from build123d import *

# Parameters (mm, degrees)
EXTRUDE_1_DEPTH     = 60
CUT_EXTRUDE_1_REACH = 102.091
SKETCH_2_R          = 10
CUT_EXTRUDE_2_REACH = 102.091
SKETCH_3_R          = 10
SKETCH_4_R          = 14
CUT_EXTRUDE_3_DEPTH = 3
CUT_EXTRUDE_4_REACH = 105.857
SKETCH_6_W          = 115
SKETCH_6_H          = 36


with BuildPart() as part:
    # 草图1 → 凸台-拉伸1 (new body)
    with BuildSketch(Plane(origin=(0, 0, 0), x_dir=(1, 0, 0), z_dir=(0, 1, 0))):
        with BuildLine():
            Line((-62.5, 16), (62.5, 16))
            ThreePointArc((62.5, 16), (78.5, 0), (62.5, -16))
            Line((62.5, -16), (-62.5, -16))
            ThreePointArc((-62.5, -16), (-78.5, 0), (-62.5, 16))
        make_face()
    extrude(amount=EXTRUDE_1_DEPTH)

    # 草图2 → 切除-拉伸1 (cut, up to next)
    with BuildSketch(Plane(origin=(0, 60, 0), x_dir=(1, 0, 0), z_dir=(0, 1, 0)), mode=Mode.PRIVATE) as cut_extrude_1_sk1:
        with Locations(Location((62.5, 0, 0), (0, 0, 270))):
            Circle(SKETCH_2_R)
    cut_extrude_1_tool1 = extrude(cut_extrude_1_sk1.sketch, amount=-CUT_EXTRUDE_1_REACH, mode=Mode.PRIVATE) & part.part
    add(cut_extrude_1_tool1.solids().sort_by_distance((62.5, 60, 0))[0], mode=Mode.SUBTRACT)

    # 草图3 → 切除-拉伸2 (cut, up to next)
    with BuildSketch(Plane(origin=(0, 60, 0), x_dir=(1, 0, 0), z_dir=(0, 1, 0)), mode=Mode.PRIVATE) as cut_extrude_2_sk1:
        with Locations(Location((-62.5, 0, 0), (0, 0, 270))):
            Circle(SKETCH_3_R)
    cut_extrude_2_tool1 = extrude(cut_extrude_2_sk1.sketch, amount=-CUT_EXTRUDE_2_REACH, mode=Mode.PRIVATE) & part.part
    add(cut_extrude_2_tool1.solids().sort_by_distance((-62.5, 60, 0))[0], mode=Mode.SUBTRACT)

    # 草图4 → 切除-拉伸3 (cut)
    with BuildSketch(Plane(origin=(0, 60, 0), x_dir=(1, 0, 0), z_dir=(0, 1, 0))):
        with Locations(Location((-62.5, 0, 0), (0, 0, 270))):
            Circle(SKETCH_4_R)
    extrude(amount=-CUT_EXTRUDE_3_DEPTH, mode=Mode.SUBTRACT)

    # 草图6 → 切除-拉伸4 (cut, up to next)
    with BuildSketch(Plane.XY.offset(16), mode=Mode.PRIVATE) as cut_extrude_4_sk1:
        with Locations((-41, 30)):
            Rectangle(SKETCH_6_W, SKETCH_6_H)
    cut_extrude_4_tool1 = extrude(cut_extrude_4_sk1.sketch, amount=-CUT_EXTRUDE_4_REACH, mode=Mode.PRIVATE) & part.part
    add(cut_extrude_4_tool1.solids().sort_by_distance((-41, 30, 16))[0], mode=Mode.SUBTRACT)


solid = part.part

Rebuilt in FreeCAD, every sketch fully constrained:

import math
import FreeCAD as App
import Part
import Sketcher
Q = App.Units.Quantity


def add_polygon(sketch, points):
    """Adds a closed chain of lines whose ends are joined by coincident constraints."""
    first, n = sketch.GeometryCount, len(points)
    for a, b in zip(points, points[1:] + points[:1]):
        sketch.addGeometry(Part.LineSegment(App.Vector(*a, 0), App.Vector(*b, 0)), False)
    for i in range(n):
        sketch.addConstraint(Sketcher.Constraint("Coincident", first + i, 2, first + (i + 1) % n, 1))

doc = App.newDocument("Part")
body = doc.addObject("PartDesign::Body", "Body")

sketch1 = body.newObject("Sketcher::SketchObject", "Sketch")
sketch1.AttachmentSupport = (doc.getObject("XZ_Plane"), [""])
sketch1.MapMode = "FlatFace"
sketch1.addGeometry([
    Part.LineSegment(App.Vector(62, -16, 0), App.Vector(-62, -16, 0)),
    Part.ArcOfCircle(Part.Circle(App.Vector(-62, 0, 0), App.Vector(0, 0, 1), 16), math.radians(90), math.radians(270)),
    Part.LineSegment(App.Vector(-62, 16, 0), App.Vector(62, 16, 0)),
    Part.ArcOfCircle(Part.Circle(App.Vector(62, 0, 0), App.Vector(0, 0, 1), 16), math.radians(-90), math.radians(90)),
], False)
sketch1.addConstraint([
    Sketcher.Constraint("Tangent", 0, 2, 1, 2),
    Sketcher.Constraint("Tangent", 1, 1, 2, 1),
    Sketcher.Constraint("Tangent", 2, 2, 3, 2),
    Sketcher.Constraint("Tangent", 3, 1, 0, 1),
    Sketcher.Constraint("Horizontal", 0),
    Sketcher.Constraint("Horizontal", 2),
    Sketcher.Constraint("Symmetric", 1, 3, 3, 3, -1, 1),
    Sketcher.Constraint("Radius", 1, Q("16 mm")),
    Sketcher.Constraint("DistanceX", 0, 2, 0, 1, Q("125 mm")),
])
pad1 = body.newObject("PartDesign::Pad", "Pad")
pad1.Profile = sketch1
pad1.Length = 60
pad1.Reversed = True

sketch2 = body.newObject("Sketcher::SketchObject", "Sketch001")
sketch2.AttachmentSupport = (doc.getObject("XZ_Plane"), [""])
sketch2.MapMode = "FlatFace"
sketch2.AttachmentOffset = App.Placement(App.Vector(0, 0, -60), App.Rotation())
sketch2.addGeometry(Part.Circle(App.Vector(62, 0, 0), App.Vector(0, 0, 1), 10), False)
sketch2.addConstraint([
    Sketcher.Constraint("PointOnObject", 0, 3, -1),
    Sketcher.Constraint("Diameter", 0, Q("20 mm")),
    Sketcher.Constraint("DistanceX", -1, 1, 0, 3, Q("62.5 mm")),
])
pocket1 = body.newObject("PartDesign::Pocket", "Pocket")
pocket1.Profile = sketch2
pocket1.Type = "UpToFirst"
pocket1.Reversed = True

sketch3 = body.newObject("Sketcher::SketchObject", "Sketch002")
sketch3.AttachmentSupport = (doc.getObject("XZ_Plane"), [""])
sketch3.MapMode = "FlatFace"
sketch3.AttachmentOffset = App.Placement(App.Vector(0, 0, -60), App.Rotation())
sketch3.addGeometry(Part.Circle(App.Vector(-62, 0, 0), App.Vector(0, 0, 1), 10), False)
sketch3.addConstraint([
    Sketcher.Constraint("PointOnObject", 0, 3, -1),
    Sketcher.Constraint("Diameter", 0, Q("20 mm")),
    Sketcher.Constraint("DistanceX", 0, 3, -1, 1, Q("62.5 mm")),
])
pocket2 = body.newObject("PartDesign::Pocket", "Pocket001")
pocket2.Profile = sketch3
pocket2.Type = "UpToFirst"
pocket2.Reversed = True

sketch4 = body.newObject("Sketcher::SketchObject", "Sketch003")
sketch4.AttachmentSupport = (doc.getObject("XZ_Plane"), [""])
sketch4.MapMode = "FlatFace"
sketch4.AttachmentOffset = App.Placement(App.Vector(0, 0, -60), App.Rotation())
sketch4.addGeometry(Part.Circle(App.Vector(-62, 0, 0), App.Vector(0, 0, 1), 14), False)
sketch4.addConstraint([
    Sketcher.Constraint("PointOnObject", 0, 3, -1),
    Sketcher.Constraint("Diameter", 0, Q("28 mm")),
    Sketcher.Constraint("DistanceX", 0, 3, -1, 1, Q("62.5 mm")),
])
pocket3 = body.newObject("PartDesign::Pocket", "Pocket002")
pocket3.Profile = sketch4
pocket3.Length = 3
pocket3.Reversed = True

sketch5 = body.newObject("Sketcher::SketchObject", "Sketch004")
sketch5.AttachmentSupport = (doc.getObject("XY_Plane"), [""])
sketch5.MapMode = "FlatFace"
sketch5.AttachmentOffset = App.Placement(App.Vector(0, 0, 16), App.Rotation())
add_polygon(sketch5, [(-98, 48), (-98, 12), (16, 12), (16, 48)])
sketch5.addConstraint([
    Sketcher.Constraint("Vertical", 0),
    Sketcher.Constraint("Horizontal", 1),
    Sketcher.Constraint("Vertical", 2),
    Sketcher.Constraint("Horizontal", 3),
    Sketcher.Constraint("DistanceX", 1, 1, 1, 2, Q("115 mm")),
    Sketcher.Constraint("DistanceY", 0, 2, 0, 1, Q("36 mm")),
    Sketcher.Constraint("DistanceY", -1, 1, 0, 2, Q("12 mm")),
    Sketcher.Constraint("DistanceX", 0, 2, -1, 1, Q("98.5 mm")),
])
pocket4 = body.newObject("PartDesign::Pocket", "Pocket003")
pocket4.Profile = sketch5
pocket4.Type = "UpToFirst"

doc.recompute()
